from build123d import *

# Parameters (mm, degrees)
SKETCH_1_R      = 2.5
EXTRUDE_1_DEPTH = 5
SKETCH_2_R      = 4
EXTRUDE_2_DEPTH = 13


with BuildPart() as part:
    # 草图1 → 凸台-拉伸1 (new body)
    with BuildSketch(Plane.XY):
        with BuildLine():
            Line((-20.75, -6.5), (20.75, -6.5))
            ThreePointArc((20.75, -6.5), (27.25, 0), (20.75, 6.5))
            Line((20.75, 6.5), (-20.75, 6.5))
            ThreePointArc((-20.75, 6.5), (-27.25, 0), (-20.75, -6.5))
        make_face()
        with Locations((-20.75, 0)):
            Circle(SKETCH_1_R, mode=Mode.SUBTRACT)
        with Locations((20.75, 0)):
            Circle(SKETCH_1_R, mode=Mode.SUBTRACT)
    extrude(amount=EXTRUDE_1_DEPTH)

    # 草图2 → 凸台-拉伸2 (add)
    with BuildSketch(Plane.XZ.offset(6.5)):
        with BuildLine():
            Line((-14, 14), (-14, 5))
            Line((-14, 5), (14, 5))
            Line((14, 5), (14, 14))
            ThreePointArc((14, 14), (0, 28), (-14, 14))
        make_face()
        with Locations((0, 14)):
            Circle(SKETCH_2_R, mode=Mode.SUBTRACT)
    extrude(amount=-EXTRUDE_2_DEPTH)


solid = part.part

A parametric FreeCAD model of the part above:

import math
import FreeCAD as App
import Part
import Sketcher

V = App.Vector
Q = App.Units.Quantity

doc = App.newDocument("Part")
params = doc.addObject("Spreadsheet::Sheet", "Params")
for row, (alias, value) in enumerate([
    ("sketch1_diameter", "5 mm"),
    ("sketch1_radius", "6.5 mm"),
    ("sketch1_width", "41.5 mm"),
    ("pad1_length", "5 mm"),
    ("sketch2_diameter", "8 mm"),
    ("sketch2_radius", "14 mm"),
    ("sketch2_height", "9 mm"),
    ("pad2_length", "13 mm"),
], start=1):
    params.set(f"A{row}", alias)
    params.set(f"B{row}", "=" + value)
    params.setAlias(f"B{row}", alias)

body = doc.addObject("PartDesign::Body", "Body")

sketch1 = body.newObject("Sketcher::SketchObject", "Sketch")
sketch1.AttachmentSupport = (doc.getObject("XY_Plane"), [""])
sketch1.MapMode = "FlatFace"
sketch1.addGeometry(Part.LineSegment(V(-20.75, -6.5, 0), V(20.75, -6.5, 0)), False)
sketch1.addGeometry(Part.ArcOfCircle(Part.Circle(V(20.75, 0, 0), V(0, 0, 1), 6.5), math.radians(-90), math.radians(90)), False)
sketch1.addGeometry(Part.LineSegment(V(20.75, 6.5, 0), V(-20.75, 6.5, 0)), False)
sketch1.addGeometry(Part.ArcOfCircle(Part.Circle(V(-20.75, 0, 0), V(0, 0, 1), 6.5), math.radians(90), math.radians(270)), False)
sketch1.addGeometry(Part.Circle(V(-20.75, 0, 0), V(0, 0, 1), 2.5), False)
sketch1.addGeometry(Part.Circle(V(20.75, 0, 0), V(0, 0, 1), 2.5), False)
sketch1.addConstraint(Sketcher.Constraint("Tangent", 0, 2, 1, 1))
sketch1.addConstraint(Sketcher.Constraint("Tangent", 1, 2, 2, 1))
sketch1.addConstraint(Sketcher.Constraint("Tangent", 2, 2, 3, 1))
sketch1.addConstraint(Sketcher.Constraint("Tangent", 3, 2, 0, 1))
sketch1.addConstraint(Sketcher.Constraint("Horizontal", 0))
sketch1.addConstraint(Sketcher.Constraint("Horizontal", 2))
sketch1.addConstraint(Sketcher.Constraint("Coincident", 4, 3, 3, 3))
sketch1.addConstraint(Sketcher.Constraint("Coincident", 5, 3, 1, 3))
sketch1.addConstraint(Sketcher.Constraint("Equal", 4, 5))
sketch1.addConstraint(Sketcher.Constraint("Symmetric", 1, 3, 3, 3, -1, 1))
sketch1.addConstraint(Sketcher.Constraint("Diameter", 4, Q("5 mm")))
sketch1.addConstraint(Sketcher.Constraint("Radius", 1, Q("6.5 mm")))
sketch1.addConstraint(Sketcher.Constraint("DistanceX", 0, 1, 0, 2, Q("41.5 mm")))
sketch1.setExpression("Constraints[10]", "Params.sketch1_diameter")
sketch1.setExpression("Constraints[11]", "Params.sketch1_radius")
sketch1.setExpression("Constraints[12]", "Params.sketch1_width")
pad1 = body.newObject("PartDesign::Pad", "Pad")
pad1.Profile = sketch1
pad1.setExpression("Length", "Params.pad1_length")

sketch2 = body.newObject("Sketcher::SketchObject", "Sketch001")
sketch2.AttachmentSupport = (doc.getObject("XZ_Plane"), [""])
sketch2.MapMode = "FlatFace"
sketch2.AttachmentOffset = App.Placement(V(0, 0, 6.5), App.Rotation())
sketch2.addGeometry(Part.LineSegment(V(-14, 14, 0), V(-14, 5, 0)), False)
sketch2.addGeometry(Part.LineSegment(V(-14, 5, 0), V(14, 5, 0)), False)
sketch2.addGeometry(Part.LineSegment(V(14, 5, 0), V(14, 14, 0)), False)
sketch2.addGeometry(Part.ArcOfCircle(Part.Circle(V(0, 14, 0), V(0, 0, 1), 14), math.radians(0), math.radians(180)), False)
sketch2.addGeometry(Part.Circle(V(0, 14, 0), V(0, 0, 1), 4), False)
sketch2.addConstraint(Sketcher.Constraint("Coincident", 0, 2, 1, 1))
sketch2.addConstraint(Sketcher.Constraint("Coincident", 1, 2, 2, 1))
sketch2.addConstraint(Sketcher.Constraint("Tangent", 2, 2, 3, 1))
sketch2.addConstraint(Sketcher.Constraint("Tangent", 3, 2, 0, 1))
sketch2.addConstraint(Sketcher.Constraint("Vertical", 0))
sketch2.addConstraint(Sketcher.Constraint("Horizontal", 1))
sketch2.addConstraint(Sketcher.Constraint("Vertical", 2))
sketch2.addConstraint(Sketcher.Constraint("Coincident", 4, 3, 3, 3))
sketch2.addConstraint(Sketcher.Constraint("PointOnObject", 3, 3, -2))
sketch2.addConstraint(Sketcher.Constraint("Diameter", 4, Q("8 mm")))
sketch2.addConstraint(Sketcher.Constraint("Radius", 3, Q("14 mm")))
sketch2.addConstraint(Sketcher.Constraint("DistanceY", 0, 2, 0, 1, Q("9 mm")))
sketch2.addConstraint(Sketcher.Constraint("DistanceY", -1, 1, 3, 3, Q("14 mm")))
sketch2.setExpression("Constraints[9]", "Params.sketch2_diameter")
sketch2.setExpression("Constraints[10]", "Params.sketch2_radius")
sketch2.setExpression("Constraints[11]", "Params.sketch2_height")
pad2 = body.newObject("PartDesign::Pad", "Pad001")
pad2.Profile = sketch2
pad2.setExpression("Length", "Params.pad2_length")
pad2.Reversed = True

doc.recompute()
